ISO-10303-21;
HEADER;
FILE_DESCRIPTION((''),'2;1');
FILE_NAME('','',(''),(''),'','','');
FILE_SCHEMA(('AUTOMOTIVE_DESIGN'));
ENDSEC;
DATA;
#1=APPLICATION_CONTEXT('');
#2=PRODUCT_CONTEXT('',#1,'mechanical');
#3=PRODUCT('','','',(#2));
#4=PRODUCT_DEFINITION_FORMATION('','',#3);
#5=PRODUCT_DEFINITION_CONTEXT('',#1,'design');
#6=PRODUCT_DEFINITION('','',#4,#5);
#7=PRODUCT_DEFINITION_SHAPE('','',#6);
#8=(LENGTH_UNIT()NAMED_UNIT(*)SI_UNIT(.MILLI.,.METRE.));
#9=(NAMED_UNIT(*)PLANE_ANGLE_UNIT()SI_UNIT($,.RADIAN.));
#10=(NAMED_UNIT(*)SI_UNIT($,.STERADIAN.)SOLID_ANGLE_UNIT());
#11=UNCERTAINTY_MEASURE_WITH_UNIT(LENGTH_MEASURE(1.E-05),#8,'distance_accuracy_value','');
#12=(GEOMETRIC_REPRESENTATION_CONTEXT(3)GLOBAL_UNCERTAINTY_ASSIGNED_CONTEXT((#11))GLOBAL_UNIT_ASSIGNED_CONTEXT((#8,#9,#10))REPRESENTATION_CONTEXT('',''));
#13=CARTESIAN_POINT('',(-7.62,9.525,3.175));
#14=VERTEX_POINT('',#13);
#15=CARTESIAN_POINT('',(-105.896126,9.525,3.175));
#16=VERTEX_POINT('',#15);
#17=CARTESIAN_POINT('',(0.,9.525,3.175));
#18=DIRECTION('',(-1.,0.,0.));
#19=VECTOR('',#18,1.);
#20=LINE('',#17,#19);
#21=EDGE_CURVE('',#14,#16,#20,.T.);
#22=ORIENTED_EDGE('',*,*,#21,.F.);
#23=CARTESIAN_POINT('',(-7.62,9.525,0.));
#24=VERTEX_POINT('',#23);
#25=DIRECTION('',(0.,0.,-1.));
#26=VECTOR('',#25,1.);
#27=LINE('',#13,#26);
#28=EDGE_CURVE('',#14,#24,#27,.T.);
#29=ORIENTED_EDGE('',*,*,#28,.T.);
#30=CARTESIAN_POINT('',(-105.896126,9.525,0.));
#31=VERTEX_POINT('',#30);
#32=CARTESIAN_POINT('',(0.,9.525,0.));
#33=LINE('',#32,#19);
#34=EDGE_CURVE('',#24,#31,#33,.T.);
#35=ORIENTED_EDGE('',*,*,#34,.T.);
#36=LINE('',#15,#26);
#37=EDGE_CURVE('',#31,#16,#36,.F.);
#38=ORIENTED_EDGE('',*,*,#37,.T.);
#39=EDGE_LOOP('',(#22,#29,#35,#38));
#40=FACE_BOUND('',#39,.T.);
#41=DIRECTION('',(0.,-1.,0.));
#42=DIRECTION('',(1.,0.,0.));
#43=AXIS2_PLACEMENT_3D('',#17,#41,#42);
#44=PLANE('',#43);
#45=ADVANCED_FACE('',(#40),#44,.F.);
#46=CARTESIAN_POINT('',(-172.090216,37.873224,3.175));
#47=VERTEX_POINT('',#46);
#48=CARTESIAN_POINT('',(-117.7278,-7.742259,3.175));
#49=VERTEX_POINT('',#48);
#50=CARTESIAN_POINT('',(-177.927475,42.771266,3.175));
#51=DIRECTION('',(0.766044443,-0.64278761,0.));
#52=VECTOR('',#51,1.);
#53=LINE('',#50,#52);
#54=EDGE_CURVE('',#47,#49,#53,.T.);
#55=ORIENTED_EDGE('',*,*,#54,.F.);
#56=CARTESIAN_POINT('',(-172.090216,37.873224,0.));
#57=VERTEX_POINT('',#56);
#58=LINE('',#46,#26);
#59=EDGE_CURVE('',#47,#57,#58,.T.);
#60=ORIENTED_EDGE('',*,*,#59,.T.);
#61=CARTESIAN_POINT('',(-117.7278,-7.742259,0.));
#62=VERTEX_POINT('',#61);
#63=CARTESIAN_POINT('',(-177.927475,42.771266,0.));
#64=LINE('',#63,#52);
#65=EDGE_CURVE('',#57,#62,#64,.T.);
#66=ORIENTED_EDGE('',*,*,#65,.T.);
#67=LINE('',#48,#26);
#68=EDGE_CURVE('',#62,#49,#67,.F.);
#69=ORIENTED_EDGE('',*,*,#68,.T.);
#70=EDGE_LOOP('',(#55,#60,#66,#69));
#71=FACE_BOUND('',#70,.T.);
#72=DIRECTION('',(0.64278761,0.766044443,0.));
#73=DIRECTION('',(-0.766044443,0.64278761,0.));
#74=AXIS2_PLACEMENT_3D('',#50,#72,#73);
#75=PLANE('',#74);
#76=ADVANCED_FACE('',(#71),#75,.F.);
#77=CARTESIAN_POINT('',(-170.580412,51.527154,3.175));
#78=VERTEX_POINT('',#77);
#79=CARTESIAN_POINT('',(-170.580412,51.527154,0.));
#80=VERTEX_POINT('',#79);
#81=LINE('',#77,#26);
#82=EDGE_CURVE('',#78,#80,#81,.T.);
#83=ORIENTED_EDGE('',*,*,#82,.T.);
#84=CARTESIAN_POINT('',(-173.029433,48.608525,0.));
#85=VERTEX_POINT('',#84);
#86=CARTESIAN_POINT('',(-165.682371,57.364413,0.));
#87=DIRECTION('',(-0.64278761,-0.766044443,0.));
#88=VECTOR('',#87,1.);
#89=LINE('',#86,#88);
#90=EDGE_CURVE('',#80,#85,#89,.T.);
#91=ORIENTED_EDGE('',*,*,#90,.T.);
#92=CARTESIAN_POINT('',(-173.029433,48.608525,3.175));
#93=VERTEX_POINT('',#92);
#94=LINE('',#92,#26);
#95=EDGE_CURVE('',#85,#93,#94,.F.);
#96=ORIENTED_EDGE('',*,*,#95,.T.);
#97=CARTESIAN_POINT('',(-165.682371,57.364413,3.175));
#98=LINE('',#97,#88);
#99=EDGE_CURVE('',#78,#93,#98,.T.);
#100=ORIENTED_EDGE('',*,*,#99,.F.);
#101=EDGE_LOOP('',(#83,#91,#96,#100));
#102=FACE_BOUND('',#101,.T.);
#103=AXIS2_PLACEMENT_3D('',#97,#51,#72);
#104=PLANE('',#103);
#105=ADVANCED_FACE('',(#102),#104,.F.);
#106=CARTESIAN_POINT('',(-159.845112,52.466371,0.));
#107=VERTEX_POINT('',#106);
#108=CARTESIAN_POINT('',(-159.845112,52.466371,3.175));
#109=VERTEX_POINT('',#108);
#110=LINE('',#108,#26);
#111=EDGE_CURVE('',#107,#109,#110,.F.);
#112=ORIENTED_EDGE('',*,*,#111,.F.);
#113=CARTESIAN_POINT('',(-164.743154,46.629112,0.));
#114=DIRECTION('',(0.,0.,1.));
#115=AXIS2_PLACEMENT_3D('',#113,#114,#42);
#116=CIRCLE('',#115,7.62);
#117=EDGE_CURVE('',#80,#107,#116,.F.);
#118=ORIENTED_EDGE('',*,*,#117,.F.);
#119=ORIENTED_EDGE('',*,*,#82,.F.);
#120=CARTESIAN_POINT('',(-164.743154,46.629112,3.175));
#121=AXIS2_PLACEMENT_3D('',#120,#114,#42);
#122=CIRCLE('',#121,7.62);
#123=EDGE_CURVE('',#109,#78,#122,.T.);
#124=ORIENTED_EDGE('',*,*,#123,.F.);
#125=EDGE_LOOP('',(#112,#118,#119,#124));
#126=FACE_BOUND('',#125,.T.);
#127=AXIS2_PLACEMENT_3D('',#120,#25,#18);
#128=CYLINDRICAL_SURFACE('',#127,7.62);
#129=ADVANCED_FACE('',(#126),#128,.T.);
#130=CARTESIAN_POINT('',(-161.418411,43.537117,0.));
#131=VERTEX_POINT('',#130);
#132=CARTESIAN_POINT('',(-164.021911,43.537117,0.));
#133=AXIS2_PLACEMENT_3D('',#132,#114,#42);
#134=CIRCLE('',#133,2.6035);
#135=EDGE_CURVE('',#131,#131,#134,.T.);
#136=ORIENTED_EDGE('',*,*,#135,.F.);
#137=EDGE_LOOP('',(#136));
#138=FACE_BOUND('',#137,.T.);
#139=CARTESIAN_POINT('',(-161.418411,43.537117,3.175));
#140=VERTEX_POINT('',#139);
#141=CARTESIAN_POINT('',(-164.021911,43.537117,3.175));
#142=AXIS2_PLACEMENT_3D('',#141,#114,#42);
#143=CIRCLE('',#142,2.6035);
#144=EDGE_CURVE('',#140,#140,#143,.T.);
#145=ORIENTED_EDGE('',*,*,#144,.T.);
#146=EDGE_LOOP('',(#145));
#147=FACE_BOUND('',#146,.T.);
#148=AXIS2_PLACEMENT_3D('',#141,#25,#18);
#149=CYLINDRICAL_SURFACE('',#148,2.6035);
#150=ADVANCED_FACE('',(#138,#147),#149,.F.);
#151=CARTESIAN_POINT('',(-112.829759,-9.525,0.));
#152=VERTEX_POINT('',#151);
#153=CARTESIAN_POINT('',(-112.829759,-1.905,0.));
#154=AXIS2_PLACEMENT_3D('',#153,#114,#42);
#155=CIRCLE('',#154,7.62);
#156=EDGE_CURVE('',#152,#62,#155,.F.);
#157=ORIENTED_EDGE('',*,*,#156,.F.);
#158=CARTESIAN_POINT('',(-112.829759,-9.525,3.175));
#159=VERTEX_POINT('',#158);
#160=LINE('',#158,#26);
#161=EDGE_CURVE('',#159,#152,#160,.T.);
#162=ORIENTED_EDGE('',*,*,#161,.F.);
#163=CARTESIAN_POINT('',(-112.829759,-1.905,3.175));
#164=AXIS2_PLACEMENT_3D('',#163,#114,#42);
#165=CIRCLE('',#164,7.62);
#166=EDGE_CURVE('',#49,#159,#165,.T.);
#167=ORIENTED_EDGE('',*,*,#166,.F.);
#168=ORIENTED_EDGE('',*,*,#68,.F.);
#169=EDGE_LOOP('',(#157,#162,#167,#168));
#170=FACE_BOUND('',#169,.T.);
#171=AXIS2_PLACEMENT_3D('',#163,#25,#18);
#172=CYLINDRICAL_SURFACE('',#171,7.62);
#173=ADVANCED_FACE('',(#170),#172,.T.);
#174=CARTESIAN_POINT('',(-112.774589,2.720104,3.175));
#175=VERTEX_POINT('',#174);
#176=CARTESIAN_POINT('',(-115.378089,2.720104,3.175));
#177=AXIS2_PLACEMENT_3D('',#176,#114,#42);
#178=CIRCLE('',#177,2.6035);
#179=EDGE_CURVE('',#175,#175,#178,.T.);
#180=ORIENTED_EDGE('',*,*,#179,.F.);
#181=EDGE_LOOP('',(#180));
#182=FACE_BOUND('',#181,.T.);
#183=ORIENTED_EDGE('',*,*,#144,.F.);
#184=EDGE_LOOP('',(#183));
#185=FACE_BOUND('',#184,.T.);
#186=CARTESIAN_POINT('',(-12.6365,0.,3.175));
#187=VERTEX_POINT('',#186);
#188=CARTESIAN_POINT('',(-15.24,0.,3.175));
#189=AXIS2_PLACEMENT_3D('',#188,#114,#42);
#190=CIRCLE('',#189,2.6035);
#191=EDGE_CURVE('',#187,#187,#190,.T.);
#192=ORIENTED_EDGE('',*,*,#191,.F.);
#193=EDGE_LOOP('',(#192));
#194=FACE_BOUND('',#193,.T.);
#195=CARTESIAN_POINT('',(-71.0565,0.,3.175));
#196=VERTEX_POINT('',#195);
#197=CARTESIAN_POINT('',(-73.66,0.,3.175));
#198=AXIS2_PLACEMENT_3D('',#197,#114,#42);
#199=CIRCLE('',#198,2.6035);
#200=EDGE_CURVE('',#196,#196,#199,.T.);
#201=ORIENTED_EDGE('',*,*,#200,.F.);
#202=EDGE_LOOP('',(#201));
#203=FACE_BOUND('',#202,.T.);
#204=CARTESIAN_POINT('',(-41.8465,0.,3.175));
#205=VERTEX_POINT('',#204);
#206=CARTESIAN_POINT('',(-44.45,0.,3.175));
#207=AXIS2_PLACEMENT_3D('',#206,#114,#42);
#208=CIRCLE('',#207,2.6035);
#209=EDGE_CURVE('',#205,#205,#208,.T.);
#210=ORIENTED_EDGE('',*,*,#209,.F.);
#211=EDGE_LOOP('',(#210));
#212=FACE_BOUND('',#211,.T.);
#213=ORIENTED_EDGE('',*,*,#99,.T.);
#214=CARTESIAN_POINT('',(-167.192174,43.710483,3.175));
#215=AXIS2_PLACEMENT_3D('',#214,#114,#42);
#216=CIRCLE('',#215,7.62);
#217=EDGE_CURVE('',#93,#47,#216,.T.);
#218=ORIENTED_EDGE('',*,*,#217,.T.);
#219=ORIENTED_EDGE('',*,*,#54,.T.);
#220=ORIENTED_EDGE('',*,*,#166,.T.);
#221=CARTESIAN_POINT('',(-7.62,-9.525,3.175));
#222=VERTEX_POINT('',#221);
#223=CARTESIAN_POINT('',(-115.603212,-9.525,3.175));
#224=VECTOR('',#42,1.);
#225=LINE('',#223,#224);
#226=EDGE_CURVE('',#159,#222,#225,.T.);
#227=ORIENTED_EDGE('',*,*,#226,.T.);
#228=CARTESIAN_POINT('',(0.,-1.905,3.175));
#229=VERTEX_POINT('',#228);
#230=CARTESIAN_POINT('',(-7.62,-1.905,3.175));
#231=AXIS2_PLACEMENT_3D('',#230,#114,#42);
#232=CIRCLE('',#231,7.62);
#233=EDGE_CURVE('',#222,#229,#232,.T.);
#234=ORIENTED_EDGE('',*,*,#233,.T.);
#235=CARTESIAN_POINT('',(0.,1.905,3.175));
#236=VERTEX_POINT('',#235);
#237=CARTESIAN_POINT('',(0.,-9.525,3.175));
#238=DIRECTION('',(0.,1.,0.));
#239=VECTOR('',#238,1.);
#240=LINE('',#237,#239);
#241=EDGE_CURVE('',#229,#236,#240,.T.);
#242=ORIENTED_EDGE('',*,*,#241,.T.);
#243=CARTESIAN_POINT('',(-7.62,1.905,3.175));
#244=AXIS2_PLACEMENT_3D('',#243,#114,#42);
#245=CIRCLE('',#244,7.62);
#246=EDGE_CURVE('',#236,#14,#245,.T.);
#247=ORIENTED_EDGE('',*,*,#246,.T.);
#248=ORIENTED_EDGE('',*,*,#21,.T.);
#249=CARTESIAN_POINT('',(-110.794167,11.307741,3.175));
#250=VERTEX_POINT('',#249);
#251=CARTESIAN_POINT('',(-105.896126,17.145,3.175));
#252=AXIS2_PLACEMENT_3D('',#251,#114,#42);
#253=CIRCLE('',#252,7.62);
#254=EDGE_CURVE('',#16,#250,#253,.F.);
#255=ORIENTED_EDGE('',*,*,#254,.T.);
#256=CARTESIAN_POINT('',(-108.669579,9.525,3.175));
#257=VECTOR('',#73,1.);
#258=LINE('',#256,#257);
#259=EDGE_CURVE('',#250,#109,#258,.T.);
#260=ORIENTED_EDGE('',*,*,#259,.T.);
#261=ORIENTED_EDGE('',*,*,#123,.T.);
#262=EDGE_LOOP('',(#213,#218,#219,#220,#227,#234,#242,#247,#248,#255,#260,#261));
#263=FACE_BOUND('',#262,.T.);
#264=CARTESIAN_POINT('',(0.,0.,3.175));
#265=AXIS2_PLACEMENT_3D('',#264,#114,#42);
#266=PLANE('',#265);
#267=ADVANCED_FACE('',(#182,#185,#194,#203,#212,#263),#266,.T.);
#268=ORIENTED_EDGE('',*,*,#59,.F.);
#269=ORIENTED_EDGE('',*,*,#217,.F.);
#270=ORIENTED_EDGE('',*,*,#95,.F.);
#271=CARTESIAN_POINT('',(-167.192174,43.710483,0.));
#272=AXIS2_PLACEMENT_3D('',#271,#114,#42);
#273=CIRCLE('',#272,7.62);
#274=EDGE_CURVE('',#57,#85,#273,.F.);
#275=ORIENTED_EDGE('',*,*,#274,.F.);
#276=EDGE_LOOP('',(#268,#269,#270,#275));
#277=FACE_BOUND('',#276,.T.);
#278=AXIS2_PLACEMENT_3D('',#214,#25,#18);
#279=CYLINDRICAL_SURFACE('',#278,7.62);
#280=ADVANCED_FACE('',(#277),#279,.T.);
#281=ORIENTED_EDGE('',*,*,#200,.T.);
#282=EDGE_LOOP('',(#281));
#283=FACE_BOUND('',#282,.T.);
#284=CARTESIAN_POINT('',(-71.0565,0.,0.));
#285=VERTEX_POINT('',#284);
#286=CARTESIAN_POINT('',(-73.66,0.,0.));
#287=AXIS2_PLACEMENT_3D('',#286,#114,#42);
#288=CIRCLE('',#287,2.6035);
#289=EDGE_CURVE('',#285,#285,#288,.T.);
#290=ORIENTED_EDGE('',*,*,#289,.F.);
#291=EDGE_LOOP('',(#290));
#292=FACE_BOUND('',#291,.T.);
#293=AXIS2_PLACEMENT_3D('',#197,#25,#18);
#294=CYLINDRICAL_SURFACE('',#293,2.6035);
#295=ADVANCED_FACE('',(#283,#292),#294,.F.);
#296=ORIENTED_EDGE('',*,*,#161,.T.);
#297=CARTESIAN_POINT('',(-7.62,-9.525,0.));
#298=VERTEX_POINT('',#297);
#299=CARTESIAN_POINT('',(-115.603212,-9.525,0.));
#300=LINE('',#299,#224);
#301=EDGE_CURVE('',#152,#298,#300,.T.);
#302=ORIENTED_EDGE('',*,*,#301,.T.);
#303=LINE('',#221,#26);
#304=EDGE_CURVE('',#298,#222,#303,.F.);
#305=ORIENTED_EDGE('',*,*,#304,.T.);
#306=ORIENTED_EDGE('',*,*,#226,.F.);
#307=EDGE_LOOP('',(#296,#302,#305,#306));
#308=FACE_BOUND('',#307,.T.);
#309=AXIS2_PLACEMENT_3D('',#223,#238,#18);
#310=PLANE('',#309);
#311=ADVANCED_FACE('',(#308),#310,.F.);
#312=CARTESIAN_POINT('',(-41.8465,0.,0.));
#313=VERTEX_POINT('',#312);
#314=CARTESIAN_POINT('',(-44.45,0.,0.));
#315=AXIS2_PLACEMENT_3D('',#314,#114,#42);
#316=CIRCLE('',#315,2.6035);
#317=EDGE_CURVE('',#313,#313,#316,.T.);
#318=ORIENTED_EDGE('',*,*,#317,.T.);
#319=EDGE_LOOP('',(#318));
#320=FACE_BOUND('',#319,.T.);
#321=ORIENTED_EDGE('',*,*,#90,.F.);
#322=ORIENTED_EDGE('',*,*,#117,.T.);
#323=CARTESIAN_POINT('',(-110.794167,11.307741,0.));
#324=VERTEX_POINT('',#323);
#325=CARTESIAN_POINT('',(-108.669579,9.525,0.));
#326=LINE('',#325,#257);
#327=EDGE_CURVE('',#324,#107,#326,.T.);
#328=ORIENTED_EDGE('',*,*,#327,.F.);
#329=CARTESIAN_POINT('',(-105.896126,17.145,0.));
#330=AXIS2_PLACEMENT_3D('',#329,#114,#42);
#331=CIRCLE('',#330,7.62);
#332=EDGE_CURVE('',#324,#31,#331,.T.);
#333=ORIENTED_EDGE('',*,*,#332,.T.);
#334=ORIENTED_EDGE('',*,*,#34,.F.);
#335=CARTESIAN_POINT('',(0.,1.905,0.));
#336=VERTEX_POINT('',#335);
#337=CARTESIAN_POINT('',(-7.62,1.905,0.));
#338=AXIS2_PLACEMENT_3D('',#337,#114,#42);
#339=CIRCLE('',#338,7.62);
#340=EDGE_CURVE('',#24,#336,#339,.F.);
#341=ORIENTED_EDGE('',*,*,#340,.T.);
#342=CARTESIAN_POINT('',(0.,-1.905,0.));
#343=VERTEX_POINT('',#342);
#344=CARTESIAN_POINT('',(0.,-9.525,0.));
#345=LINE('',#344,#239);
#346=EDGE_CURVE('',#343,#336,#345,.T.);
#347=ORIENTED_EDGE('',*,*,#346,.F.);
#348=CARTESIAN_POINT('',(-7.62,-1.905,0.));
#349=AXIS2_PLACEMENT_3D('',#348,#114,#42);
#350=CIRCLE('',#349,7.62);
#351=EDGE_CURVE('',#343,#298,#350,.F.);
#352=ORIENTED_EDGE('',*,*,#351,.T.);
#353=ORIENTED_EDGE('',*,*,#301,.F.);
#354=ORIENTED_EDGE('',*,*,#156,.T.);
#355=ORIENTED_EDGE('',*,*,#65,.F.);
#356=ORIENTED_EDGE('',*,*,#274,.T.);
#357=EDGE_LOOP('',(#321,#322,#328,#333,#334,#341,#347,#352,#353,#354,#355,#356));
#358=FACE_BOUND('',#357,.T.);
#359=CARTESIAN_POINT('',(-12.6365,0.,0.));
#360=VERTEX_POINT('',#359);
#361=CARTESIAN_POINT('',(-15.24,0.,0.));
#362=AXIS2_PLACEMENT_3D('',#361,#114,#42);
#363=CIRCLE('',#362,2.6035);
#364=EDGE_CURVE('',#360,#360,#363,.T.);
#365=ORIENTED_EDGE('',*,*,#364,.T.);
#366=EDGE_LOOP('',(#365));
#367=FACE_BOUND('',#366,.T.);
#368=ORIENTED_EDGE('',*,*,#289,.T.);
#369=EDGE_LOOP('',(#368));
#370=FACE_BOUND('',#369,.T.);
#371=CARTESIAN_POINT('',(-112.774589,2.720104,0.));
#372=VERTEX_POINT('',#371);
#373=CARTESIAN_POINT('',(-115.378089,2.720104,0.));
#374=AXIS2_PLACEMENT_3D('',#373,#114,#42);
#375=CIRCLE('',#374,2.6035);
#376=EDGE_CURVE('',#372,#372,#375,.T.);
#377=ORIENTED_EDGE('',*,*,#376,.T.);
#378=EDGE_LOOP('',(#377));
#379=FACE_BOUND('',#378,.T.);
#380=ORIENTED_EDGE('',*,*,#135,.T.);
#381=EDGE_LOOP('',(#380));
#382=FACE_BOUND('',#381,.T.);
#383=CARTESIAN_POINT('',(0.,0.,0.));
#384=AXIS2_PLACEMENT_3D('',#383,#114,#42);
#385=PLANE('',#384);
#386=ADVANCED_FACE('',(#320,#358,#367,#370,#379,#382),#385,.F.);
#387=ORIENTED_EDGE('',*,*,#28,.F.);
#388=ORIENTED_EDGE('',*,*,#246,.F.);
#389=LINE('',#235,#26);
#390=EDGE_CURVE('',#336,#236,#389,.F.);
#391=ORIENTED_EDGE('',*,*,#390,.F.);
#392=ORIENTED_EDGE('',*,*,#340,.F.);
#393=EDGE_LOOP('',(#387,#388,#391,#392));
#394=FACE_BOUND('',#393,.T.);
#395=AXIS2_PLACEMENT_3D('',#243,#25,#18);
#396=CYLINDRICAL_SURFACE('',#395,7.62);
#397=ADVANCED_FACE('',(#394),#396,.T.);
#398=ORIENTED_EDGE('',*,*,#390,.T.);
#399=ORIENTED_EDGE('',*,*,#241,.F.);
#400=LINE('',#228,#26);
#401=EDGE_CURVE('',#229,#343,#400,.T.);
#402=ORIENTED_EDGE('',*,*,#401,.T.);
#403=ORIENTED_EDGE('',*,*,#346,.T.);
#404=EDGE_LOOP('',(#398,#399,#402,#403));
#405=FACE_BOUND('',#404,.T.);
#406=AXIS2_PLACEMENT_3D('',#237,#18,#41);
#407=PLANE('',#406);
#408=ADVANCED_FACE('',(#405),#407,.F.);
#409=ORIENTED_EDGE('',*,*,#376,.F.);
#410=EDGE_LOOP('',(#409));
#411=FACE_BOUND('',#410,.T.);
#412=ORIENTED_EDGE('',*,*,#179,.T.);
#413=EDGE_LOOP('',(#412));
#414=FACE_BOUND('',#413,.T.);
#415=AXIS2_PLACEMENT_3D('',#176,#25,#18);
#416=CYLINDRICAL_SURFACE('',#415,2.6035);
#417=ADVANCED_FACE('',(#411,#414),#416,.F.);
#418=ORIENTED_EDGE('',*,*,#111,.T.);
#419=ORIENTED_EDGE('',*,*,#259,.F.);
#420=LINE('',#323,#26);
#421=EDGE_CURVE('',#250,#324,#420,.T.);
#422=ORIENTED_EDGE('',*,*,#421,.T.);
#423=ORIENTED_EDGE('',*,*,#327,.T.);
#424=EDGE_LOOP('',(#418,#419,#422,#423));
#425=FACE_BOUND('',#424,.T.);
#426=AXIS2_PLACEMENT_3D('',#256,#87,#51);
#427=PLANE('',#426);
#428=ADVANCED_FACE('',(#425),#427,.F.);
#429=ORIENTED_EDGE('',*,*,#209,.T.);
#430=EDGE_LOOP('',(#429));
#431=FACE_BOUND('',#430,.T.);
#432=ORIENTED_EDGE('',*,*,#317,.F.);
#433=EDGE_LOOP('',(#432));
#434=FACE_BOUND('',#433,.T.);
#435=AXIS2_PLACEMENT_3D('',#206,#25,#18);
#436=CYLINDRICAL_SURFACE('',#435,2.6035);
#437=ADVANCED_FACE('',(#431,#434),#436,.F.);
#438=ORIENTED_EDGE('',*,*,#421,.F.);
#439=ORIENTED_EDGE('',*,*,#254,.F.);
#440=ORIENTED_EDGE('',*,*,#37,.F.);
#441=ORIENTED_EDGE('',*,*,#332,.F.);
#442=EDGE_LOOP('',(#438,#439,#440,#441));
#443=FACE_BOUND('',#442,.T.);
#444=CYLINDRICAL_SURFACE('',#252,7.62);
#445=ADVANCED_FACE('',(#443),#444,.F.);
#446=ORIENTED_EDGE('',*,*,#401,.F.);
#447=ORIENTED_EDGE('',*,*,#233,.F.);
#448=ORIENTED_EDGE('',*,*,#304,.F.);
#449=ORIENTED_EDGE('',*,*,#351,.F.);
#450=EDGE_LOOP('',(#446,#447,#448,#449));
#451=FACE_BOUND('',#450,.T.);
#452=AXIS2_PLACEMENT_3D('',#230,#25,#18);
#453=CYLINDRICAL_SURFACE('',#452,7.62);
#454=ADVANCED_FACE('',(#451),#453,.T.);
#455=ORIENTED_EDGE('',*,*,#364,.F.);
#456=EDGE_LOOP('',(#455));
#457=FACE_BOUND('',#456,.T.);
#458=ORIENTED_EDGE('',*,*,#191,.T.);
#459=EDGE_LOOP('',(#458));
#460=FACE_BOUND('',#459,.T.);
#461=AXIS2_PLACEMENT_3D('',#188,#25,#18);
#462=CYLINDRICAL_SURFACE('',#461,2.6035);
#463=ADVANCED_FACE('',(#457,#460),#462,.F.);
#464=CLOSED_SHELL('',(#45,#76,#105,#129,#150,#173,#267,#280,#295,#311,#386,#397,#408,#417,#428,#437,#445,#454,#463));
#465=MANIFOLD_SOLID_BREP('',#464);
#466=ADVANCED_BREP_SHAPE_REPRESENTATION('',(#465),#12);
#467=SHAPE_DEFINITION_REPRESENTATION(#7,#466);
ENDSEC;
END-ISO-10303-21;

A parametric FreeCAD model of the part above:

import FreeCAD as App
import Part
import Sketcher

V = App.Vector
Q = App.Units.Quantity


def edges_at(feature, points):
    """Names of the edges that pass closest to the given points."""
    edges = feature.Shape.Edges
    near = lambda p: min(range(len(edges)), key=lambda i: edges[i].distToShape(Part.Vertex(*p))[0])
    return sorted({f"Edge{near(p) + 1}" for p in points})


def add_polygon(sketch, points):
    """Adds a closed chain of lines whose ends are joined by coincident constraints."""
    first, n = sketch.GeometryCount, len(points)
    for a, b in zip(points, points[1:] + points[:1]):
        sketch.addGeometry(Part.LineSegment(App.Vector(*a, 0), App.Vector(*b, 0)), False)
    for i in range(n):
        sketch.addConstraint(Sketcher.Constraint("Coincident", first + i, 2, first + (i + 1) % n, 1))

doc = App.newDocument("Part")
body = doc.addObject("PartDesign::Body", "Body")

# Sketch on XY plane
sketch1 = doc.addObject("Sketcher::SketchObject", "Sketch")
body.addObject(sketch1)
sketch1.AttachmentSupport = (doc.XY_Plane, [""])
sketch1.MapMode = "FlatFace"
add_polygon(sketch1, [(0, -9.5), (0, 9.5), (-108.7, 9.5), (-165.7, 57.4), (-177.9, 42.8), (-115.6, -9.5)])  # lines 0-5
sketch1.addGeometry(Part.Circle(V(-115.4, 2.7, 0), V(0, 0, 1), 2.6), False)  # 6
sketch1.addGeometry(Part.Circle(V(-73.7, 0, 0), V(0, 0, 1), 2.6), False)  # 7
sketch1.addGeometry(Part.Circle(V(-44.5, 0, 0), V(0, 0, 1), 2.6), False)  # 8
sketch1.addGeometry(Part.Circle(V(-15.2, 0, 0), V(0, 0, 1), 2.6), False)  # 9
sketch1.addGeometry(Part.Circle(V(-164, 43.5, 0), V(0, 0, 1), 2.6), False)  # 10
sketch1.addConstraint(Sketcher.Constraint("Vertical", 0))
sketch1.addConstraint(Sketcher.Constraint("Horizontal", 1))
sketch1.addConstraint(Sketcher.Constraint("Horizontal", 5))
sketch1.addConstraint(Sketcher.Constraint("Equal", 6, 7))
sketch1.addConstraint(Sketcher.Constraint("Equal", 7, 8))
sketch1.addConstraint(Sketcher.Constraint("Equal", 8, 9))
sketch1.addConstraint(Sketcher.Constraint("Equal", 9, 10))
sketch1.addConstraint(Sketcher.Constraint("Symmetric", 0, 2, 5, 2, -1, 1))
sketch1.addConstraint(Sketcher.Constraint("PointOnObject", 7, 3, -1))
sketch1.addConstraint(Sketcher.Constraint("PointOnObject", 8, 3, -1))
sketch1.addConstraint(Sketcher.Constraint("PointOnObject", 9, 3, -1))
sketch1.addConstraint(Sketcher.Constraint("Perpendicular", 2, 3))
sketch1.addConstraint(Sketcher.Constraint("Perpendicular", 3, 4))
sketch1.addConstraint(Sketcher.Constraint("Diameter", 6, Q("0.205 in")))
sketch1.addConstraint(Sketcher.Constraint("Angle", 2, Q("140 deg")))
sketch1.addConstraint(Sketcher.Constraint("DistanceY", 0, 1, 0, 2, Q("0.75 in")))
sketch1.addConstraint(Sketcher.Constraint("DistanceX", 7, 3, -1, 1, Q("2.9 in")))
sketch1.addConstraint(Sketcher.Constraint("DistanceX", 9, 3, -1, 1, Q("0.6 in")))
sketch1.addConstraint(Sketcher.Constraint("Distance", 3, Q("0.75 in")))
sketch1.addConstraint(Sketcher.Constraint("DistanceX", 8, 3, -1, 1, Q("1.75 in")))
sketch1.addConstraint(Sketcher.Constraint("DistanceX", 1, 2, 1, 1, Q("108.669579 mm")))
sketch1.addConstraint(Sketcher.Constraint("DistanceX", 10, 3, 4, 2, Q("48.418699 mm")))
sketch1.addConstraint(Sketcher.Constraint("DistanceX", 6, 3, -1, 1, Q("115.378089 mm")))
sketch1.addConstraint(Sketcher.Constraint("DistanceX", 2, 2, -1, 1, Q("165.682371 mm")))
sketch1.addConstraint(Sketcher.Constraint("DistanceY", 6, 3, 2, 2, Q("54.644309 mm")))
sketch1.addConstraint(Sketcher.Constraint("DistanceY", 3, 2, 10, 3, Q("0.765851 mm")))
pad1 = doc.addObject("PartDesign::Pad", "Pad")
body.addObject(pad1)
pad1.Profile = sketch1
pad1.Length = Q("0.125 in")
doc.recompute()

fillet = doc.addObject("PartDesign::Fillet", "Fillet")
body.addObject(fillet)
fillet.Base = (pad1, edges_at(pad1, [
    (-115.603, -9.525, 1.587),
    (-177.927, 42.771, 1.587),
    (-165.682, 57.364, 1.587),
    (-108.67, 9.525, 1.587),
    (0, 9.525, 1.587),
    (0, -9.525, 1.587),
]))
fillet.Radius = Q("0.3 in")

doc.recompute()
